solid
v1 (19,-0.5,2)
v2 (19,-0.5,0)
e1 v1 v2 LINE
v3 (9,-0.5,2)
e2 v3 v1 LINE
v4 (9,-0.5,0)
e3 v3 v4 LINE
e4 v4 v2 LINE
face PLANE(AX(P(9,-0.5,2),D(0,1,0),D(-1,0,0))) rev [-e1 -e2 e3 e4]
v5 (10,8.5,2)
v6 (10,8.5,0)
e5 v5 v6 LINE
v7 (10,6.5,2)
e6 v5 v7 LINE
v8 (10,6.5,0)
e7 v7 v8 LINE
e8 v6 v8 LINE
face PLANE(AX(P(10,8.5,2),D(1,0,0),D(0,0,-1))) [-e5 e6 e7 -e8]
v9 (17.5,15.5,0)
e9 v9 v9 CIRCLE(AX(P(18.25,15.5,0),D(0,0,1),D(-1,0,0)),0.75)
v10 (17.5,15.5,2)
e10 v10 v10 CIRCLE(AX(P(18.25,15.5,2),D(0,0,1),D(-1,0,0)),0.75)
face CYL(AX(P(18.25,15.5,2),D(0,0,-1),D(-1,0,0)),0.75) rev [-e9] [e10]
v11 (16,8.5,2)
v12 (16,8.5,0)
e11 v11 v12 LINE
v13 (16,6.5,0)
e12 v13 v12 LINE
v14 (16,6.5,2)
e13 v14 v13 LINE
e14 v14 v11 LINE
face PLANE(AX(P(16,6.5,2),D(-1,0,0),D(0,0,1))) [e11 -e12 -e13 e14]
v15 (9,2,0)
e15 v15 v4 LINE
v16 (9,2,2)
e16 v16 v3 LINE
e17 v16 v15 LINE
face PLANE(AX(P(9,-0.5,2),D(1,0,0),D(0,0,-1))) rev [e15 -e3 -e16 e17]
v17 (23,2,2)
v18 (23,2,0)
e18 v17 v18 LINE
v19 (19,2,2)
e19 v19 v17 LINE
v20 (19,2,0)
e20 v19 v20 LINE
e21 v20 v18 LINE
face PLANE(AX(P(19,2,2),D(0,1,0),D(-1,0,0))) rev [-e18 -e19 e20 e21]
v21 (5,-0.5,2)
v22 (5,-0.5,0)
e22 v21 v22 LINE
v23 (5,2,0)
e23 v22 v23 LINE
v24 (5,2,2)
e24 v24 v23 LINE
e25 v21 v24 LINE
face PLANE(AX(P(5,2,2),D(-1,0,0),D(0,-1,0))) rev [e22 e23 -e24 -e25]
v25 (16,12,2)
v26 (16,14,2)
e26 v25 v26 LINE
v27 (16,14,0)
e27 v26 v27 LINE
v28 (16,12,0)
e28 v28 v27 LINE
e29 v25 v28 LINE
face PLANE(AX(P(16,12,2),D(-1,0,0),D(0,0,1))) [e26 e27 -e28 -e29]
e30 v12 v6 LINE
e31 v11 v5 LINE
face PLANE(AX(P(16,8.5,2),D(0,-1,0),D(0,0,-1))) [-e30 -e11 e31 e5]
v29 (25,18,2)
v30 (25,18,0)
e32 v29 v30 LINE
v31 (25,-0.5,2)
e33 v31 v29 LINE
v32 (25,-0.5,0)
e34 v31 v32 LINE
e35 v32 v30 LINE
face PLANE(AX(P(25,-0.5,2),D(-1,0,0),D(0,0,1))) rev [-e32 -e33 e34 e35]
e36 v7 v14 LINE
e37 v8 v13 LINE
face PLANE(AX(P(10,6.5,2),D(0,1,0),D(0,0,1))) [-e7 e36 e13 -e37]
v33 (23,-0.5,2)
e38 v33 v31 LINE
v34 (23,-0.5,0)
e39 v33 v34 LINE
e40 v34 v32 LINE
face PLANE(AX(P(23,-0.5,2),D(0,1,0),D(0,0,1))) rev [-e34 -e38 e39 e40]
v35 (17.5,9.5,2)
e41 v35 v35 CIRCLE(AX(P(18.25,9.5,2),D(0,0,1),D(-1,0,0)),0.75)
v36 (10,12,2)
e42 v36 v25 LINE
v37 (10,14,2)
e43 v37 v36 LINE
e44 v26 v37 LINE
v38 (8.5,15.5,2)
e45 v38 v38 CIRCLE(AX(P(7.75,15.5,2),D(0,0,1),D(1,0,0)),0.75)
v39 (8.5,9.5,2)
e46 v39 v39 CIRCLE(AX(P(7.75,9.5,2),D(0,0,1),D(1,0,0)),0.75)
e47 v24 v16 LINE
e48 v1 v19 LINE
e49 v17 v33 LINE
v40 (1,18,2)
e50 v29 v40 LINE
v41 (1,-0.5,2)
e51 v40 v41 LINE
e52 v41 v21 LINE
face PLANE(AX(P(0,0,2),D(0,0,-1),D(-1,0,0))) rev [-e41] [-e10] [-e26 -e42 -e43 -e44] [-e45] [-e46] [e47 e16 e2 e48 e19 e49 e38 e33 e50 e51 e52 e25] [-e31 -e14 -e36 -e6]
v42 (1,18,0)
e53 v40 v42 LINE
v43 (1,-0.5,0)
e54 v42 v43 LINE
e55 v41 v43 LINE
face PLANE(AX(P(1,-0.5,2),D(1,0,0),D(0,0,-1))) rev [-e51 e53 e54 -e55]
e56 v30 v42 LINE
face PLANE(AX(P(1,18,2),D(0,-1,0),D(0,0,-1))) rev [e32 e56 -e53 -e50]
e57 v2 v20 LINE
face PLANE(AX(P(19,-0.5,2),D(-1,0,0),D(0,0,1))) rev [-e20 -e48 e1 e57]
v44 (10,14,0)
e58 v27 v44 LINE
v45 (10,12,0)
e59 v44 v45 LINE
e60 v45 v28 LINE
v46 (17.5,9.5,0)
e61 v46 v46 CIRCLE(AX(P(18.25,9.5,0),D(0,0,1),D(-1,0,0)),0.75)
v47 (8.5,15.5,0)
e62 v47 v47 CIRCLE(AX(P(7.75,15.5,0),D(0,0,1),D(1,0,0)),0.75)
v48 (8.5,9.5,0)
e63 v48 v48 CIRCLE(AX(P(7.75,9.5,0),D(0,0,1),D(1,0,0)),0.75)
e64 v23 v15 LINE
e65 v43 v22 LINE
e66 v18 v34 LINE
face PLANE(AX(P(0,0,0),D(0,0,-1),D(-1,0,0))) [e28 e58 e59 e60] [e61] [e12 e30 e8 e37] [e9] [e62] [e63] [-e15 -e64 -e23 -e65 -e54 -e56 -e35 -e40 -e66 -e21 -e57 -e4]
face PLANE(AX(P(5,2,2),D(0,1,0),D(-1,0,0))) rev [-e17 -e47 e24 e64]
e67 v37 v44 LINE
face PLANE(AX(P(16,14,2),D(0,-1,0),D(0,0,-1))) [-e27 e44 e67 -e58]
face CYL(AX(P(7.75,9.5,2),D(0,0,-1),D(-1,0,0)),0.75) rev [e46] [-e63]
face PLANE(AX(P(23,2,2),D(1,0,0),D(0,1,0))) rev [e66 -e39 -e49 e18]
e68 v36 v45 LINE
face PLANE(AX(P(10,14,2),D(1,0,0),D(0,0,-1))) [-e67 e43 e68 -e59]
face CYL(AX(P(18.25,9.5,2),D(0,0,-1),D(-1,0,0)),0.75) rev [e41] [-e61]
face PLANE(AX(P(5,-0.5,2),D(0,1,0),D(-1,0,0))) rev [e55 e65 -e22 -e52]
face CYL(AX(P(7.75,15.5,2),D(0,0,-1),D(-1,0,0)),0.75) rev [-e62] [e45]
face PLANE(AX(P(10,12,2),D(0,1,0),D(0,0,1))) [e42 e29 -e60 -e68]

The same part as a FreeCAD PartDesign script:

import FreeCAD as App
import Part
import Sketcher
from FreeCAD import Vector
Q = App.Units.Quantity

doc = App.newDocument("Part")
body = doc.addObject("PartDesign::Body", "Body")

# Sketch on XY plane
sketch1 = doc.addObject("Sketcher::SketchObject", "Sketch")
body.addObject(sketch1)
sketch1.AttachmentSupport = (doc.XY_Plane, [""])
sketch1.MapMode = "FlatFace"
sketch1.addGeometry(Part.LineSegment(Vector(5, 2, 0), Vector(9, 2, 0)), False)
sketch1.addGeometry(Part.LineSegment(Vector(9, 2, 0), Vector(9, -0.5, 0)), False)
sketch1.addGeometry(Part.LineSegment(Vector(9, -0.5, 0), Vector(19, -0.5, 0)), False)
sketch1.addGeometry(Part.LineSegment(Vector(19, -0.5, 0), Vector(19, 2, 0)), False)
sketch1.addGeometry(Part.LineSegment(Vector(19, 2, 0), Vector(23, 2, 0)), False)
sketch1.addGeometry(Part.LineSegment(Vector(23, 2, 0), Vector(23, -0.5, 0)), False)
sketch1.addGeometry(Part.LineSegment(Vector(23, -0.5, 0), Vector(25, -0.5, 0)), False)
sketch1.addGeometry(Part.LineSegment(Vector(25, -0.5, 0), Vector(25, 18, 0)), False)
sketch1.addGeometry(Part.LineSegment(Vector(25, 18, 0), Vector(1, 18, 0)), False)
sketch1.addGeometry(Part.LineSegment(Vector(1, 18, 0), Vector(1, -0.5, 0)), False)
sketch1.addGeometry(Part.LineSegment(Vector(1, -0.5, 0), Vector(5, -0.5, 0)), False)
sketch1.addGeometry(Part.LineSegment(Vector(5, -0.5, 0), Vector(5, 2, 0)), False)
sketch1.addGeometry(Part.Circle(Vector(7.8, 9.5, 0), Vector(0, 0, 1), 0.8), False)
sketch1.addGeometry(Part.LineSegment(Vector(16, 6.5, 0), Vector(10, 6.5, 0)), False)
sketch1.addGeometry(Part.LineSegment(Vector(10, 6.5, 0), Vector(10, 8.5, 0)), False)
sketch1.addGeometry(Part.LineSegment(Vector(10, 8.5, 0), Vector(16, 8.5, 0)), False)
sketch1.addGeometry(Part.LineSegment(Vector(16, 8.5, 0), Vector(16, 6.5, 0)), False)
sketch1.addGeometry(Part.Circle(Vector(18.2, 9.5, 0), Vector(0, 0, 1), 0.8), False)
sketch1.addGeometry(Part.Circle(Vector(7.8, 15.5, 0), Vector(0, 0, 1), 0.8), False)
sketch1.addGeometry(Part.LineSegment(Vector(16, 12, 0), Vector(10, 12, 0)), False)
sketch1.addGeometry(Part.LineSegment(Vector(10, 12, 0), Vector(10, 14, 0)), False)
sketch1.addGeometry(Part.LineSegment(Vector(10, 14, 0), Vector(16, 14, 0)), False)
sketch1.addGeometry(Part.LineSegment(Vector(16, 14, 0), Vector(16, 12, 0)), False)
sketch1.addGeometry(Part.Circle(Vector(18.2, 15.5, 0), Vector(0, 0, 1), 0.8), False)
sketch1.addConstraint(Sketcher.Constraint("Coincident", 0, 2, 1, 1))
sketch1.addConstraint(Sketcher.Constraint("Coincident", 1, 2, 2, 1))
sketch1.addConstraint(Sketcher.Constraint("Coincident", 2, 2, 3, 1))
sketch1.addConstraint(Sketcher.Constraint("Coincident", 3, 2, 4, 1))
sketch1.addConstraint(Sketcher.Constraint("Coincident", 4, 2, 5, 1))
sketch1.addConstraint(Sketcher.Constraint("Coincident", 5, 2, 6, 1))
sketch1.addConstraint(Sketcher.Constraint("Coincident", 6, 2, 7, 1))
sketch1.addConstraint(Sketcher.Constraint("Coincident", 7, 2, 8, 1))
sketch1.addConstraint(Sketcher.Constraint("Coincident", 8, 2, 9, 1))
sketch1.addConstraint(Sketcher.Constraint("Coincident", 9, 2, 10, 1))
sketch1.addConstraint(Sketcher.Constraint("Coincident", 10, 2, 11, 1))
sketch1.addConstraint(Sketcher.Constraint("Coincident", 11, 2, 0, 1))
sketch1.addConstraint(Sketcher.Constraint("Coincident", 13, 2, 14, 1))
sketch1.addConstraint(Sketcher.Constraint("Coincident", 14, 2, 15, 1))
sketch1.addConstraint(Sketcher.Constraint("Coincident", 15, 2, 16, 1))
sketch1.addConstraint(Sketcher.Constraint("Coincident", 16, 2, 13, 1))
sketch1.addConstraint(Sketcher.Constraint("Coincident", 19, 2, 20, 1))
sketch1.addConstraint(Sketcher.Constraint("Coincident", 20, 2, 21, 1))
sketch1.addConstraint(Sketcher.Constraint("Coincident", 21, 2, 22, 1))
sketch1.addConstraint(Sketcher.Constraint("Coincident", 22, 2, 19, 1))
sketch1.addConstraint(Sketcher.Constraint("Horizontal", 0))
sketch1.addConstraint(Sketcher.Constraint("Vertical", 1))
sketch1.addConstraint(Sketcher.Constraint("Horizontal", 2))
sketch1.addConstraint(Sketcher.Constraint("Vertical", 3))
sketch1.addConstraint(Sketcher.Constraint("Horizontal", 4))
sketch1.addConstraint(Sketcher.Constraint("Vertical", 5))
sketch1.addConstraint(Sketcher.Constraint("Horizontal", 6))
sketch1.addConstraint(Sketcher.Constraint("Vertical", 7))
sketch1.addConstraint(Sketcher.Constraint("Horizontal", 8))
sketch1.addConstraint(Sketcher.Constraint("Vertical", 9))
sketch1.addConstraint(Sketcher.Constraint("Horizontal", 10))
sketch1.addConstraint(Sketcher.Constraint("Vertical", 11))
sketch1.addConstraint(Sketcher.Constraint("Horizontal", 13))
sketch1.addConstraint(Sketcher.Constraint("Vertical", 14))
sketch1.addConstraint(Sketcher.Constraint("Horizontal", 15))
sketch1.addConstraint(Sketcher.Constraint("Vertical", 16))
sketch1.addConstraint(Sketcher.Constraint("Horizontal", 19))
sketch1.addConstraint(Sketcher.Constraint("Vertical", 20))
sketch1.addConstraint(Sketcher.Constraint("Horizontal", 21))
sketch1.addConstraint(Sketcher.Constraint("Vertical", 22))
sketch1.addConstraint(Sketcher.Constraint("Equal", 12, 17))
sketch1.addConstraint(Sketcher.Constraint("Equal", 17, 18))
sketch1.addConstraint(Sketcher.Constraint("Equal", 18, 23))
sketch1.addConstraint(Sketcher.Constraint("Horizontal", 12, 3, 17, 3))
sketch1.addConstraint(Sketcher.Constraint("Horizontal", 18, 3, 23, 3))
sketch1.addConstraint(Sketcher.Constraint("Horizontal", 0, 2, 3, 2))
sketch1.addConstraint(Sketcher.Constraint("Horizontal", 2, 2, 5, 2))
sketch1.addConstraint(Sketcher.Constraint("Horizontal", 6, 2, 9, 2))
sketch1.addConstraint(Sketcher.Constraint("Vertical", 12, 3, 18, 3))
sketch1.addConstraint(Sketcher.Constraint("Vertical", 17, 3, 23, 3))
sketch1.addConstraint(Sketcher.Constraint("Vertical", 14, 2, 19, 2))
sketch1.addConstraint(Sketcher.Constraint("Vertical", 16, 2, 21, 2))
sketch1.addConstraint(Sketcher.Constraint("Equal", 0, 4))
sketch1.addConstraint(Sketcher.Constraint("Equal", 4, 10))
sketch1.addConstraint(Sketcher.Constraint("Equal", 6, 14))
sketch1.addConstraint(Sketcher.Constraint("Equal", 16, 20))
sketch1.addConstraint(Sketcher.Constraint("Diameter", 12, Q("1.5 mm")))
sketch1.addConstraint(Sketcher.Constraint("DistanceX", 0, 1, 0, 2, Q("4 mm")))
sketch1.addConstraint(Sketcher.Constraint("DistanceX", 2, 1, 2, 2, Q("10 mm")))
sketch1.addConstraint(Sketcher.Constraint("DistanceX", 6, 1, 6, 2, Q("2 mm")))
sketch1.addConstraint(Sketcher.Constraint("DistanceX", 13, 2, 13, 1, Q("6 mm")))
sketch1.addConstraint(Sketcher.Constraint("DistanceY", 1, 2, 1, 1, Q("2.5 mm")))
sketch1.addConstraint(Sketcher.Constraint("DistanceY", 7, 1, 7, 2, Q("18.5 mm")))
sketch1.addConstraint(Sketcher.Constraint("DistanceX", -1, 1, 0, 2, Q("9 mm")))
sketch1.addConstraint(Sketcher.Constraint("DistanceY", -1, 1, 0, 2, Q("2 mm")))
sketch1.addConstraint(Sketcher.Constraint("DistanceX", -1, 1, 13, 2, Q("10 mm")))
sketch1.addConstraint(Sketcher.Constraint("DistanceY", -1, 1, 19, 2, Q("12 mm")))
sketch1.addConstraint(Sketcher.Constraint("DistanceY", 12, 3, 18, 3, Q("6 mm")))
sketch1.addConstraint(Sketcher.Constraint("DistanceY", 1, 2, 12, 3, Q("10 mm")))
sketch1.addConstraint(Sketcher.Constraint("DistanceY", 13, 2, 12, 3, Q("3 mm")))
sketch1.addConstraint(Sketcher.Constraint("DistanceX", 12, 3, 17, 3, Q("10.5 mm")))
sketch1.addConstraint(Sketcher.Constraint("DistanceX", -1, 1, 12, 3, Q("7.75 mm")))
pad1 = doc.addObject("PartDesign::Pad", "Pad")
body.addObject(pad1)
pad1.Profile = sketch1
pad1.Length = 2

doc.recompute()
